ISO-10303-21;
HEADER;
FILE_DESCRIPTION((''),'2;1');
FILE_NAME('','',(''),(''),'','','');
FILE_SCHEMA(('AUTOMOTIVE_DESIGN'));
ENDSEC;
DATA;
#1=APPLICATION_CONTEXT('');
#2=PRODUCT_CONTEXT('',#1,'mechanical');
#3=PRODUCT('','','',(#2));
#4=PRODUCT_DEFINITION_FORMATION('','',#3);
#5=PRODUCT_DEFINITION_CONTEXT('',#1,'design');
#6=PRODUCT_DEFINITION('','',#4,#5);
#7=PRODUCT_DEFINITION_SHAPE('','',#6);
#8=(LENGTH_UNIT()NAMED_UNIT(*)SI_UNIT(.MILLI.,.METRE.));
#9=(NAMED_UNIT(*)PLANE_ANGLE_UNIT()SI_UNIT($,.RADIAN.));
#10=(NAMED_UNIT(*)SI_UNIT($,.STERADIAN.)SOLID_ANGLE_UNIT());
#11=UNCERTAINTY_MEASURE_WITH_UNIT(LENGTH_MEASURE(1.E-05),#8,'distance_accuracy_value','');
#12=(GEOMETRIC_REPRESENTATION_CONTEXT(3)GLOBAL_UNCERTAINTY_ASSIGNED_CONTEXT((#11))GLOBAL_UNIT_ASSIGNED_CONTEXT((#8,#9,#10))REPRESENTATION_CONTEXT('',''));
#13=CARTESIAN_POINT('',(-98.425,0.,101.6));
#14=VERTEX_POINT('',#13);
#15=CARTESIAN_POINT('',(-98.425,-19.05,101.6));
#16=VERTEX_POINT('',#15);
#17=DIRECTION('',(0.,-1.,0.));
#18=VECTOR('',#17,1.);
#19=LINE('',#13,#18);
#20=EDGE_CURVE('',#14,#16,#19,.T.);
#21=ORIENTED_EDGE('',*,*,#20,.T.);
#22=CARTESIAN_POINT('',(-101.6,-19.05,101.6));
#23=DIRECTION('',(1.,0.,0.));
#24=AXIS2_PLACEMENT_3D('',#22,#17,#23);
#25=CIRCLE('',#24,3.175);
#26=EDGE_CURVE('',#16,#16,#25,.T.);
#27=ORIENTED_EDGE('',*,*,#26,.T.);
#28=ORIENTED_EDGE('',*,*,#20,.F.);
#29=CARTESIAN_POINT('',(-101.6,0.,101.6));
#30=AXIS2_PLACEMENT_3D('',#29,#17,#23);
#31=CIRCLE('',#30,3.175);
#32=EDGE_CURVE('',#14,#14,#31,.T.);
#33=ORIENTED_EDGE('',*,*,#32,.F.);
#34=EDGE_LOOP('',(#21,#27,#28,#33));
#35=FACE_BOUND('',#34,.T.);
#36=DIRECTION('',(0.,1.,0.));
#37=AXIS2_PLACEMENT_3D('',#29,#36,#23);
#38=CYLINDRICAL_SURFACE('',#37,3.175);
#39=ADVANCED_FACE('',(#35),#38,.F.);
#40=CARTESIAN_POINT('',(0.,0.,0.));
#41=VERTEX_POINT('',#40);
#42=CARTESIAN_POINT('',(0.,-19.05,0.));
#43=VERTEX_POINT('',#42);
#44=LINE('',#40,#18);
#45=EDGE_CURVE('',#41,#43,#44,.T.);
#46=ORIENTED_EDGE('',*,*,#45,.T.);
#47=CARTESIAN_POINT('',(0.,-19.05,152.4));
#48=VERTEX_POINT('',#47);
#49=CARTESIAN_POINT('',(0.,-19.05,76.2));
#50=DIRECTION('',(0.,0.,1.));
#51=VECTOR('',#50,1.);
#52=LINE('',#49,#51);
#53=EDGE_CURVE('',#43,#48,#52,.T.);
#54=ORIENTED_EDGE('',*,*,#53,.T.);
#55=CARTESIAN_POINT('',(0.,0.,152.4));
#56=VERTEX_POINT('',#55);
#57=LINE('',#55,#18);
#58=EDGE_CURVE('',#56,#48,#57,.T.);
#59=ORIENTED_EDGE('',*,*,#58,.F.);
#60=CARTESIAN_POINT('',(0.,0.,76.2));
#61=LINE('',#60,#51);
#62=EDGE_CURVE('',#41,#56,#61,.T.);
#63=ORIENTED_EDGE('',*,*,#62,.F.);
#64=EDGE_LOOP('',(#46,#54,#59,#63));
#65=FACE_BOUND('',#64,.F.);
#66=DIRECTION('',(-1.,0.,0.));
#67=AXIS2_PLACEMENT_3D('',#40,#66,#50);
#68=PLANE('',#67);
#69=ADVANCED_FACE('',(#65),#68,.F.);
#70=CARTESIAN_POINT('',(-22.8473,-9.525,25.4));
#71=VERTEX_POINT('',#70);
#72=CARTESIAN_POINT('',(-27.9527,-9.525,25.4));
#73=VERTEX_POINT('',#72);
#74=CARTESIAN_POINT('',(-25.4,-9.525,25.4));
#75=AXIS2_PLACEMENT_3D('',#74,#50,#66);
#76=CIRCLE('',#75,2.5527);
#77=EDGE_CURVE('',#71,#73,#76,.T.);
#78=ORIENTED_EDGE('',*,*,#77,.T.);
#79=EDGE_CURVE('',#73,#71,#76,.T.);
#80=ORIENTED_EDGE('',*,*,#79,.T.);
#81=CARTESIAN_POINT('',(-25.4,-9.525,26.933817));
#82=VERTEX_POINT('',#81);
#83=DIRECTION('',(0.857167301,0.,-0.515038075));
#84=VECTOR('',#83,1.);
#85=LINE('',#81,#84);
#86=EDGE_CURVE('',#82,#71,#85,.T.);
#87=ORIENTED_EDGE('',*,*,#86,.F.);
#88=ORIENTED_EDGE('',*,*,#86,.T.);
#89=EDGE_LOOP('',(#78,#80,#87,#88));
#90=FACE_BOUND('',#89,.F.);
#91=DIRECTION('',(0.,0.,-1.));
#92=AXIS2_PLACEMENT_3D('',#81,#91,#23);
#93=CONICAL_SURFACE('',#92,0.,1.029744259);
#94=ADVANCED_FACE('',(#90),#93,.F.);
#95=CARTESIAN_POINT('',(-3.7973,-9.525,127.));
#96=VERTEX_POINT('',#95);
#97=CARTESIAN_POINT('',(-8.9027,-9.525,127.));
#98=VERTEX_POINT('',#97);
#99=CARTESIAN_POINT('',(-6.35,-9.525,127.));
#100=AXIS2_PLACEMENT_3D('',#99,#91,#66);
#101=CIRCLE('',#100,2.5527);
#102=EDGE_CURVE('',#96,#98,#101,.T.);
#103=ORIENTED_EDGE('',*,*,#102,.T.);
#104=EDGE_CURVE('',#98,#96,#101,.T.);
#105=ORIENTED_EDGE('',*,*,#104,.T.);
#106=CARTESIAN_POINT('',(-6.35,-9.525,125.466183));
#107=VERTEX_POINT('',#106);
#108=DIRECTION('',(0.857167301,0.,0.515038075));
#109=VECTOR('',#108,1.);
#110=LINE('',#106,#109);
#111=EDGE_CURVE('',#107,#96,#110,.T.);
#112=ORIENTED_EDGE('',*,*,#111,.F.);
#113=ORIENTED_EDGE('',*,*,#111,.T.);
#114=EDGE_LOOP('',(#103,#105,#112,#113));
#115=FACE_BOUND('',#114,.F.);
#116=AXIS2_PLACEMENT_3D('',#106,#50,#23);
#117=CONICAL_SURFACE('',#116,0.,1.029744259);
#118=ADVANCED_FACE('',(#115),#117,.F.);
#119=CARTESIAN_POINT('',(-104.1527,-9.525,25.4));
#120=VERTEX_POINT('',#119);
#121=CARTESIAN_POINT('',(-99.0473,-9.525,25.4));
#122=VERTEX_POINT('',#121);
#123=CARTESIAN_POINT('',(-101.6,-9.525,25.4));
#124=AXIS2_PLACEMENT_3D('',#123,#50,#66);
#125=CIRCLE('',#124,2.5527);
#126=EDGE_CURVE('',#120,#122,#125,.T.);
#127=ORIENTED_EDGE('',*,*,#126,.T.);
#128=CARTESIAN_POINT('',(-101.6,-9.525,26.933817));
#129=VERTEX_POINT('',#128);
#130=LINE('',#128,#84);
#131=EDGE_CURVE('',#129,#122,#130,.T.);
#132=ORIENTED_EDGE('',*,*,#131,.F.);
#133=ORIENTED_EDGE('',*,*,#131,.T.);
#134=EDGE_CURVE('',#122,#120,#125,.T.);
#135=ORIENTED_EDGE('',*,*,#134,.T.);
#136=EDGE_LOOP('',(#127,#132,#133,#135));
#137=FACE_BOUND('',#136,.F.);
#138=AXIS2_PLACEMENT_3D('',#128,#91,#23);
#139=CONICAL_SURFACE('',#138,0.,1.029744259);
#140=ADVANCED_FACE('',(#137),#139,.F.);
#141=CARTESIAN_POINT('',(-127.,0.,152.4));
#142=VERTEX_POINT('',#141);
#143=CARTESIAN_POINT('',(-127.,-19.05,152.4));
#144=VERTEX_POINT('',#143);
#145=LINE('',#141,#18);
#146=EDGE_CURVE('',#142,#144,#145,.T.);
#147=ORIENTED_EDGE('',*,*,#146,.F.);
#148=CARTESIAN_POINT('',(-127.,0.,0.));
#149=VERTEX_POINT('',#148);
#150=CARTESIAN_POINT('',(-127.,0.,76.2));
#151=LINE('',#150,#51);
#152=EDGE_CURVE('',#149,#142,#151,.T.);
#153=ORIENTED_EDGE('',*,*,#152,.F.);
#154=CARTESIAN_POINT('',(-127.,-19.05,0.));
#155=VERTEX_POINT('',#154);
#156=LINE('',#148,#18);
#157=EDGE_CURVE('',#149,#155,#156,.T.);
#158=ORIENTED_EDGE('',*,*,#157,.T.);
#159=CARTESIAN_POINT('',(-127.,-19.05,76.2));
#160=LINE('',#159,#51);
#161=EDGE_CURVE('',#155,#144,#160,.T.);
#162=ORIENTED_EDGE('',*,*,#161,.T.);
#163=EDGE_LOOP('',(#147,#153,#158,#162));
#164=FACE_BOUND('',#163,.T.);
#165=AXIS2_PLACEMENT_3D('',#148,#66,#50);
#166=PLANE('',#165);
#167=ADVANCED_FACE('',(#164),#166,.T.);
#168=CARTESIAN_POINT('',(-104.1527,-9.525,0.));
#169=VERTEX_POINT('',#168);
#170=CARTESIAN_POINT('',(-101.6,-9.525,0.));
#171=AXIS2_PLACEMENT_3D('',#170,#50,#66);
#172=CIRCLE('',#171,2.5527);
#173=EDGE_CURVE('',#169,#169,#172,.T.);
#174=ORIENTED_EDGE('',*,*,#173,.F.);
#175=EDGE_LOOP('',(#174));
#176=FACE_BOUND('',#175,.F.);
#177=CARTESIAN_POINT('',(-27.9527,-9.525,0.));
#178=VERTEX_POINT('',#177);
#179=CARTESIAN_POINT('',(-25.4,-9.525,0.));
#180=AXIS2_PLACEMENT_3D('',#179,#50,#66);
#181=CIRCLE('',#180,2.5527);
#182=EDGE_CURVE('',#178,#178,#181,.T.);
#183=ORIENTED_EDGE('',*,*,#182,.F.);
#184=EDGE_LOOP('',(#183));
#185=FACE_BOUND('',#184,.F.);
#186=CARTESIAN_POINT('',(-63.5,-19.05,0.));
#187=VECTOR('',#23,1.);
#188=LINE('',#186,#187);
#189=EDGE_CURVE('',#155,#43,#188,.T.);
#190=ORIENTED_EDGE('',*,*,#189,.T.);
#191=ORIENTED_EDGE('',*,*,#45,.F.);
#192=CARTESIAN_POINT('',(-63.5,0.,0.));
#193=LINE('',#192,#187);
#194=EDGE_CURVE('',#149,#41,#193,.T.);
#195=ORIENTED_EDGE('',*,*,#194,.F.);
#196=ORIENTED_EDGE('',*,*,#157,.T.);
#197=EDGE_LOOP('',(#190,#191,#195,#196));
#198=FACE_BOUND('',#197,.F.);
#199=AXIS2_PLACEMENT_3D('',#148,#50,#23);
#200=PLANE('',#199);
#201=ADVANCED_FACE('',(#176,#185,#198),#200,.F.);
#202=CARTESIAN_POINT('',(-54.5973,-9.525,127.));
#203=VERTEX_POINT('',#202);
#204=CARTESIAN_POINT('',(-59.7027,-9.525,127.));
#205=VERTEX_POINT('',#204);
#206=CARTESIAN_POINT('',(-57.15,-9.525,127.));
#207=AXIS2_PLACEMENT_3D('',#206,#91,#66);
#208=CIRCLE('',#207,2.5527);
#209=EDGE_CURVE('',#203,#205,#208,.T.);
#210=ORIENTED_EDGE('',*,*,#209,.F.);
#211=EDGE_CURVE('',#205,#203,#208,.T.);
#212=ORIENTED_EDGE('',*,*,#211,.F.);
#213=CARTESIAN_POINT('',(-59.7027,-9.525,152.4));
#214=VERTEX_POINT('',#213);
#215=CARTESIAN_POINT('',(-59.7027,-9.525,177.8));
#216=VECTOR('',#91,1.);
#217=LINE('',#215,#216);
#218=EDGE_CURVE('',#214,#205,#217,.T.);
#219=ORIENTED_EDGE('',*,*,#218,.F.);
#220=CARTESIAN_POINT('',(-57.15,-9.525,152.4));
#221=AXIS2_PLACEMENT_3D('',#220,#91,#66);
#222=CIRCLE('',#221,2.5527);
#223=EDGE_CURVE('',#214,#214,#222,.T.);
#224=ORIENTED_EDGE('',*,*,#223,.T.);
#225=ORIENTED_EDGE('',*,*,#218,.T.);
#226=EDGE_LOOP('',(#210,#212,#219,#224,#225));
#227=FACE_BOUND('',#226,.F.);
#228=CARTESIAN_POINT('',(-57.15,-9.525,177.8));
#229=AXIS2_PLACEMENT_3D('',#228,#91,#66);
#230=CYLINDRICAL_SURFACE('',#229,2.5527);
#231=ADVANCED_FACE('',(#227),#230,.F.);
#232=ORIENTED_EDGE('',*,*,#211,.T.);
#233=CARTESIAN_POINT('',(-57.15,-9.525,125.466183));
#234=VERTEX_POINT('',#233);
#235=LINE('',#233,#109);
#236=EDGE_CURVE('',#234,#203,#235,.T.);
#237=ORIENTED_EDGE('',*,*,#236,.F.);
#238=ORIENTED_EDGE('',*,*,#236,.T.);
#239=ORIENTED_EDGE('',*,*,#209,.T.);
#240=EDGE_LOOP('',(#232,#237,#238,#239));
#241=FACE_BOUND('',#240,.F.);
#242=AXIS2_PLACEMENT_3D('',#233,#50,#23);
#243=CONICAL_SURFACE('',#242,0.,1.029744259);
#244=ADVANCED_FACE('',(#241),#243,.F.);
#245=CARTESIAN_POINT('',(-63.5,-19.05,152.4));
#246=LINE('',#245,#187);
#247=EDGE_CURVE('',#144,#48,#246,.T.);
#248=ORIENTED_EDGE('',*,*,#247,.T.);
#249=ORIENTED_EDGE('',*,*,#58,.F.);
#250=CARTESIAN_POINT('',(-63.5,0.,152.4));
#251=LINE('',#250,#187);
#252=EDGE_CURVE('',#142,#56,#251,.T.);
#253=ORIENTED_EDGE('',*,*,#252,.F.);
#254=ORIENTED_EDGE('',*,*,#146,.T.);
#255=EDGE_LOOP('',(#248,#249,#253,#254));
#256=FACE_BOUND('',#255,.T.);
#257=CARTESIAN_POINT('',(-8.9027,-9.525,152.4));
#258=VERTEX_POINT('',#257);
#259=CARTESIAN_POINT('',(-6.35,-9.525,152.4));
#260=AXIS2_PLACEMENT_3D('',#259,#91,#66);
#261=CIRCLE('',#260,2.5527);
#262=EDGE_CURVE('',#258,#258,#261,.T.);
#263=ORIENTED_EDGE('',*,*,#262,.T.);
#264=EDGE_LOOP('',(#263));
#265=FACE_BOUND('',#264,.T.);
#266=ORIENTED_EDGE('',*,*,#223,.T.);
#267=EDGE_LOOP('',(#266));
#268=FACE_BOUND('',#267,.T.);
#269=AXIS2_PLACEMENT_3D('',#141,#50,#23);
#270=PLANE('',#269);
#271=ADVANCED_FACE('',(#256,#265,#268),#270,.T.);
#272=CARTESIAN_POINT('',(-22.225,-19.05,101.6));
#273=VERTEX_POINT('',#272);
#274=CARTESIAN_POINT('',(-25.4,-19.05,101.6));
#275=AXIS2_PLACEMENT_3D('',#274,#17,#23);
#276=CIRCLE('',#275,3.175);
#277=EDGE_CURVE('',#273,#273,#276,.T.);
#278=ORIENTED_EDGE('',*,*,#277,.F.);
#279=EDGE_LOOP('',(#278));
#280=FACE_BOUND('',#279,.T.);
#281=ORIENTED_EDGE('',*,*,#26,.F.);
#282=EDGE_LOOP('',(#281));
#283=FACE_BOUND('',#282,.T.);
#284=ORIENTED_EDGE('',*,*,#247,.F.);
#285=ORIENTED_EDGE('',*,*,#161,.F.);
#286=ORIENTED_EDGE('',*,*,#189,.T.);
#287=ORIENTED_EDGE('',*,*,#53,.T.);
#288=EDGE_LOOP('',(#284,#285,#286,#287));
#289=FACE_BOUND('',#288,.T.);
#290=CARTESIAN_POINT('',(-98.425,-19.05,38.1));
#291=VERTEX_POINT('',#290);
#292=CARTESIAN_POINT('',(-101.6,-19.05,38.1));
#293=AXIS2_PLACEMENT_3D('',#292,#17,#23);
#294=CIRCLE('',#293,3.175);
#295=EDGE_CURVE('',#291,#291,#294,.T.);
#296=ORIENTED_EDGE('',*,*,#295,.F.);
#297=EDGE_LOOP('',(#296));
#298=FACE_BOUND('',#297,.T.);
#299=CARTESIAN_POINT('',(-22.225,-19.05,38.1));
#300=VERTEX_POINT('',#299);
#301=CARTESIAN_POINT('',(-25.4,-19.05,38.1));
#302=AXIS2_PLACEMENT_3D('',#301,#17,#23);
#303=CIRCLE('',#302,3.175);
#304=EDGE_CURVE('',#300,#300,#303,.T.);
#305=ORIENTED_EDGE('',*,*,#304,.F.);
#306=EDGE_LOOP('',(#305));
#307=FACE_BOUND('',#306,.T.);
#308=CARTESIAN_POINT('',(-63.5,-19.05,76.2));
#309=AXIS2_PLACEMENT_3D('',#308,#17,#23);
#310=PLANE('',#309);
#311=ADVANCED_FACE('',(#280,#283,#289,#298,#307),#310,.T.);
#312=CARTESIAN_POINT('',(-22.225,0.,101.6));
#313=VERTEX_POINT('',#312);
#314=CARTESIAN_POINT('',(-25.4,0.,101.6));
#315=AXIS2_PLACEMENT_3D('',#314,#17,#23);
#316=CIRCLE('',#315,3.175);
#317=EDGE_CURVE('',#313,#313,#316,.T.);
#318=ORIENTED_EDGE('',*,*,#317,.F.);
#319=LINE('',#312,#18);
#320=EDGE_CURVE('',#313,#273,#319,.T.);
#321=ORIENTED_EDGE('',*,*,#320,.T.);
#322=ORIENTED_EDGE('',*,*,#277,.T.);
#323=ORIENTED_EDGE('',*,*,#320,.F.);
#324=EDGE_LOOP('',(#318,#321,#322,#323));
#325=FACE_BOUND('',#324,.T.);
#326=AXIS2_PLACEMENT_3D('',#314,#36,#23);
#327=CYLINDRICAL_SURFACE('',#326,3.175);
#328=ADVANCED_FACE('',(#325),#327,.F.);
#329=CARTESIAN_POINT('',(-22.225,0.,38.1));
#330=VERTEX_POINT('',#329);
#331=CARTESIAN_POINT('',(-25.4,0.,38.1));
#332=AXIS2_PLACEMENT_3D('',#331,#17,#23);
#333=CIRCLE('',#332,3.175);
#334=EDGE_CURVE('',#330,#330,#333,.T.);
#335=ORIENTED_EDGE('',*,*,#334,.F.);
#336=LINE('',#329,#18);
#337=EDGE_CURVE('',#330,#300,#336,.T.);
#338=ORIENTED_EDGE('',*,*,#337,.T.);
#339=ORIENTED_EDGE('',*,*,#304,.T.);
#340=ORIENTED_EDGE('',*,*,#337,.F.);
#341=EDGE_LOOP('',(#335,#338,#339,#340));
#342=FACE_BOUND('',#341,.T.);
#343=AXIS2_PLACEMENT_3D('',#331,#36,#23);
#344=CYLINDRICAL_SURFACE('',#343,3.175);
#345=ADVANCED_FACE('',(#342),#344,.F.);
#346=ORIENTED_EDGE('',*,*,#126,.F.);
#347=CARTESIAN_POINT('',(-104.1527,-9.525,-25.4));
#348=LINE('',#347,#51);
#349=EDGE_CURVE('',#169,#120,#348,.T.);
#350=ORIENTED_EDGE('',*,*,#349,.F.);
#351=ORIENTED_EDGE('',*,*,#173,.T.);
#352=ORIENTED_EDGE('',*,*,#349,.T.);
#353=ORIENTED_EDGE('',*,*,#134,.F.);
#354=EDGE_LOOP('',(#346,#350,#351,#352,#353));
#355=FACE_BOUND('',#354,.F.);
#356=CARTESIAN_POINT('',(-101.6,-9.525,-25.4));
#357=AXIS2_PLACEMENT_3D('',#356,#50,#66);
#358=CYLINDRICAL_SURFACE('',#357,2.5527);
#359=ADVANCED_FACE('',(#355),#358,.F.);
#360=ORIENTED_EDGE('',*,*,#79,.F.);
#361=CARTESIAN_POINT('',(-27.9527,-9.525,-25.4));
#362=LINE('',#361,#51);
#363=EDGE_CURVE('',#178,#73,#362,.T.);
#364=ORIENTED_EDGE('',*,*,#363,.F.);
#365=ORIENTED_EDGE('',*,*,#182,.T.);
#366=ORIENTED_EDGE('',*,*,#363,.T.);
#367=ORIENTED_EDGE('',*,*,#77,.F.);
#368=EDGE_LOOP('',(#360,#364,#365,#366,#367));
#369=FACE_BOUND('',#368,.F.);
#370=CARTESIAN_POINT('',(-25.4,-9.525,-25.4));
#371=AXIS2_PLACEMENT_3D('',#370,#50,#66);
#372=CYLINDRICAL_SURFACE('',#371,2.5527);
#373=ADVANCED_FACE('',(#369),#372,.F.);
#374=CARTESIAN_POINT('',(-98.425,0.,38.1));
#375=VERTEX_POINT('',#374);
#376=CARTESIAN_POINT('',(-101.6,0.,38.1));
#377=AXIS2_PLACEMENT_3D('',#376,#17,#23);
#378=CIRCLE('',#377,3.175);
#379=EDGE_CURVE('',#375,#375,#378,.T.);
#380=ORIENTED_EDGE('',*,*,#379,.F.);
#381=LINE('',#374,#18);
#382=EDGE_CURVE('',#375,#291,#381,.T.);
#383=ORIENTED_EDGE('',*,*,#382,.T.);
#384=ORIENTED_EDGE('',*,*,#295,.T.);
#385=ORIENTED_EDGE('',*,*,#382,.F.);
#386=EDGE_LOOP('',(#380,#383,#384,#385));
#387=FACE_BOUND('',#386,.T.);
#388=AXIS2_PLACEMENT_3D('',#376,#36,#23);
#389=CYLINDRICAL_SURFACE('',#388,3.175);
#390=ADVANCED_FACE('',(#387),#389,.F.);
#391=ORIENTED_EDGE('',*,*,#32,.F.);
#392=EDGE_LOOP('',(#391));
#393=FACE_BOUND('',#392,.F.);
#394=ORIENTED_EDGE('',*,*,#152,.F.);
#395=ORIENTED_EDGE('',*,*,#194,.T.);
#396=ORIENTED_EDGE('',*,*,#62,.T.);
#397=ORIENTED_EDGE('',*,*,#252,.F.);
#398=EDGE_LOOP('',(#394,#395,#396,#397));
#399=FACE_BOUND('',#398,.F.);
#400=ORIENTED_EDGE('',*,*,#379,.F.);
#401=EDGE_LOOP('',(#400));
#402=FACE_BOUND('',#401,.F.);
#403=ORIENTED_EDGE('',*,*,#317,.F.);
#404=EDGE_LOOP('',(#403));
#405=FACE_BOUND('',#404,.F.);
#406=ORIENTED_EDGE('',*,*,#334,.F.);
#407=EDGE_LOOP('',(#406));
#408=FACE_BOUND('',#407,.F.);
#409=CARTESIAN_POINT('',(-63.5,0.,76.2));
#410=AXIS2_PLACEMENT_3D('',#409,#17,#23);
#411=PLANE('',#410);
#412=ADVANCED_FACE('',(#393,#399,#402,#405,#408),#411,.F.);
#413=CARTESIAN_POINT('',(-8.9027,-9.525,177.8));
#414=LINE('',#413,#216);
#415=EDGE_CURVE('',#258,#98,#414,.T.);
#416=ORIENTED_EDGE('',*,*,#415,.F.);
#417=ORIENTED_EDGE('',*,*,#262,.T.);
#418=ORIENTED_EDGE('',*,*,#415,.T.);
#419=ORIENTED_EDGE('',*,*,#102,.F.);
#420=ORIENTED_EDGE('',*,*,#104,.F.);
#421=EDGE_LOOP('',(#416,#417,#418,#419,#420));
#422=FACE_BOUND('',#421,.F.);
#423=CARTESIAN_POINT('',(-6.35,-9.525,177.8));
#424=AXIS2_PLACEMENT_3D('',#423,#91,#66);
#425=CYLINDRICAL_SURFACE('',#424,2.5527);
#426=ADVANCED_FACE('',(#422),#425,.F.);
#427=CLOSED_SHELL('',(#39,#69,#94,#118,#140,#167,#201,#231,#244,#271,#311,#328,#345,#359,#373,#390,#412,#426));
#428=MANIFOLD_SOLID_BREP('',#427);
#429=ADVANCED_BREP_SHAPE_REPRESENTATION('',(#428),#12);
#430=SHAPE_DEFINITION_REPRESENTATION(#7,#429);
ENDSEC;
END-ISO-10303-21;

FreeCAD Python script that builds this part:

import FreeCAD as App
import Part
import Sketcher
from FreeCAD import Vector
Q = App.Units.Quantity

doc = App.newDocument("Part")
body = doc.addObject("PartDesign::Body", "Body")

sketch1 = body.newObject("Sketcher::SketchObject", "Sketch")
sketch1.AttachmentSupport = (doc.getObject("XZ_Plane"), [""])
sketch1.MapMode = "FlatFace"
sketch1.addGeometry([
    Part.LineSegment(Vector(-127, 152.4, 0), Vector(-127, 0, 0)),
    Part.LineSegment(Vector(-127, 0, 0), Vector(0, 0, 0)),
    Part.LineSegment(Vector(0, 0, 0), Vector(0, 152.4, 0)),
    Part.LineSegment(Vector(0, 152.4, 0), Vector(-127, 152.4, 0)),
    Part.Circle(Vector(-101.6, 38.1, 0), Vector(0, 0, 1), 3.2),
    Part.Circle(Vector(-25.4, 38.1, 0), Vector(0, 0, 1), 3.2),
    Part.Circle(Vector(-101.6, 101.6, 0), Vector(0, 0, 1), 3.2),
    Part.Circle(Vector(-25.4, 101.6, 0), Vector(0, 0, 1), 3.2),
], False)
sketch1.addConstraint([
    Sketcher.Constraint("Coincident", 0, 2, 1, 1),
    Sketcher.Constraint("Coincident", 1, 2, 2, 1),
    Sketcher.Constraint("Coincident", 2, 2, 3, 1),
    Sketcher.Constraint("Coincident", 3, 2, 0, 1),
    Sketcher.Constraint("Vertical", 0),
    Sketcher.Constraint("Horizontal", 1),
    Sketcher.Constraint("Vertical", 2),
    Sketcher.Constraint("Horizontal", 3),
    Sketcher.Constraint("Coincident", 1, 2, -1, 1),
    Sketcher.Constraint("Equal", 4, 5),
    Sketcher.Constraint("Equal", 5, 6),
    Sketcher.Constraint("Equal", 6, 7),
    Sketcher.Constraint("Horizontal", 4, 3, 5, 3),
    Sketcher.Constraint("Horizontal", 6, 3, 7, 3),
    Sketcher.Constraint("Vertical", 4, 3, 6, 3),
    Sketcher.Constraint("Vertical", 5, 3, 7, 3),
    Sketcher.Constraint("Diameter", 4, Q("0.25 in")),
    Sketcher.Constraint("DistanceX", 1, 1, 1, 2, Q("5 in")),
    Sketcher.Constraint("DistanceY", 0, 2, 0, 1, Q("6 in")),
    Sketcher.Constraint("DistanceX", 4, 3, -1, 1, Q("4 in")),
    Sketcher.Constraint("DistanceX", 5, 3, -1, 1, Q("1 in")),
    Sketcher.Constraint("DistanceY", -1, 1, 6, 3, Q("4 in")),
    Sketcher.Constraint("DistanceY", -1, 1, 4, 3, Q("1.5 in")),
])
pad1 = body.newObject("PartDesign::Pad", "Pad")
pad1.Profile = sketch1
pad1.Length = Q("0.75 in")

sketch2 = body.newObject("Sketcher::SketchObject", "Sketch001")
sketch2.AttachmentSupport = (doc.getObject("XY_Plane"), [""])
sketch2.MapMode = "FlatFace"
sketch2.addGeometry([
    Part.Circle(Vector(-101.6, -9.5, 0), Vector(0, 0, 1), 2.6),
    Part.Circle(Vector(-25.4, -9.5, 0), Vector(0, 0, 1), 2.6),
], False)
sketch2.addConstraint([
    Sketcher.Constraint("Equal", 0, 1),
    Sketcher.Constraint("Horizontal", 0, 3, 1, 3),
    Sketcher.Constraint("Diameter", 0, Q("0.201 in")),
    Sketcher.Constraint("DistanceX", 0, 3, -1, 1, Q("4 in")),
    Sketcher.Constraint("DistanceX", 1, 3, -1, 1, Q("1 in")),
    Sketcher.Constraint("DistanceY", 0, 3, -1, 1, Q("0.375 in")),
])
doc.recompute()
hole = body.newObject("PartDesign::Hole", "Hole")
hole.Profile = sketch2
hole.ThreadType = "None"
hole.Diameter = Q("0.201 in")
hole.DepthType = "Dimension"
hole.Depth = Q("1 in")
hole.DrillPoint = "Angled"
hole.DrillPointAngle = 118
hole.Reversed = True

sketch3 = body.newObject("Sketcher::SketchObject", "Sketch002")
sketch3.AttachmentSupport = (doc.getObject("XY_Plane"), [""])
sketch3.MapMode = "FlatFace"
sketch3.AttachmentOffset = App.Placement(Vector(0, 0, 6 * 25.4), App.Rotation())
sketch3.addGeometry(Part.Circle(Vector(-57.1, -9.5, 0), Vector(0, 0, 1), 2.6), False)
sketch3.addConstraint([
    Sketcher.Constraint("Diameter", 0, Q("0.201 in")),
    Sketcher.Constraint("DistanceX", 0, 3, -1, 1, Q("2.25 in")),
    Sketcher.Constraint("DistanceY", 0, 3, -1, 1, Q("0.375 in")),
])
doc.recompute()
hole2 = body.newObject("PartDesign::Hole", "Hole001")
hole2.Profile = sketch3
hole2.ThreadType = "None"
hole2.Diameter = Q("0.201 in")
hole2.DepthType = "Dimension"
hole2.Depth = Q("1 in")
hole2.DrillPoint = "Angled"
hole2.DrillPointAngle = 118

sketch4 = body.newObject("Sketcher::SketchObject", "Sketch003")
sketch4.AttachmentSupport = (doc.getObject("XY_Plane"), [""])
sketch4.MapMode = "FlatFace"
sketch4.AttachmentOffset = App.Placement(Vector(0, 0, 6 * 25.4), App.Rotation())
sketch4.addGeometry(Part.Circle(Vector(-6.3, -9.5, 0), Vector(0, 0, 1), 2.6), False)
sketch4.addConstraint([
    Sketcher.Constraint("Diameter", 0, Q("0.201 in")),
    Sketcher.Constraint("DistanceX", 0, 3, -1, 1, Q("0.25 in")),
    Sketcher.Constraint("DistanceY", 0, 3, -1, 1, Q("0.375 in")),
])
doc.recompute()
hole3 = body.newObject("PartDesign::Hole", "Hole002")
hole3.Profile = sketch4
hole3.ThreadType = "None"
hole3.Diameter = Q("0.201 in")
hole3.DepthType = "Dimension"
hole3.Depth = Q("1 in")
hole3.DrillPoint = "Angled"
hole3.DrillPointAngle = 118

doc.recompute()
